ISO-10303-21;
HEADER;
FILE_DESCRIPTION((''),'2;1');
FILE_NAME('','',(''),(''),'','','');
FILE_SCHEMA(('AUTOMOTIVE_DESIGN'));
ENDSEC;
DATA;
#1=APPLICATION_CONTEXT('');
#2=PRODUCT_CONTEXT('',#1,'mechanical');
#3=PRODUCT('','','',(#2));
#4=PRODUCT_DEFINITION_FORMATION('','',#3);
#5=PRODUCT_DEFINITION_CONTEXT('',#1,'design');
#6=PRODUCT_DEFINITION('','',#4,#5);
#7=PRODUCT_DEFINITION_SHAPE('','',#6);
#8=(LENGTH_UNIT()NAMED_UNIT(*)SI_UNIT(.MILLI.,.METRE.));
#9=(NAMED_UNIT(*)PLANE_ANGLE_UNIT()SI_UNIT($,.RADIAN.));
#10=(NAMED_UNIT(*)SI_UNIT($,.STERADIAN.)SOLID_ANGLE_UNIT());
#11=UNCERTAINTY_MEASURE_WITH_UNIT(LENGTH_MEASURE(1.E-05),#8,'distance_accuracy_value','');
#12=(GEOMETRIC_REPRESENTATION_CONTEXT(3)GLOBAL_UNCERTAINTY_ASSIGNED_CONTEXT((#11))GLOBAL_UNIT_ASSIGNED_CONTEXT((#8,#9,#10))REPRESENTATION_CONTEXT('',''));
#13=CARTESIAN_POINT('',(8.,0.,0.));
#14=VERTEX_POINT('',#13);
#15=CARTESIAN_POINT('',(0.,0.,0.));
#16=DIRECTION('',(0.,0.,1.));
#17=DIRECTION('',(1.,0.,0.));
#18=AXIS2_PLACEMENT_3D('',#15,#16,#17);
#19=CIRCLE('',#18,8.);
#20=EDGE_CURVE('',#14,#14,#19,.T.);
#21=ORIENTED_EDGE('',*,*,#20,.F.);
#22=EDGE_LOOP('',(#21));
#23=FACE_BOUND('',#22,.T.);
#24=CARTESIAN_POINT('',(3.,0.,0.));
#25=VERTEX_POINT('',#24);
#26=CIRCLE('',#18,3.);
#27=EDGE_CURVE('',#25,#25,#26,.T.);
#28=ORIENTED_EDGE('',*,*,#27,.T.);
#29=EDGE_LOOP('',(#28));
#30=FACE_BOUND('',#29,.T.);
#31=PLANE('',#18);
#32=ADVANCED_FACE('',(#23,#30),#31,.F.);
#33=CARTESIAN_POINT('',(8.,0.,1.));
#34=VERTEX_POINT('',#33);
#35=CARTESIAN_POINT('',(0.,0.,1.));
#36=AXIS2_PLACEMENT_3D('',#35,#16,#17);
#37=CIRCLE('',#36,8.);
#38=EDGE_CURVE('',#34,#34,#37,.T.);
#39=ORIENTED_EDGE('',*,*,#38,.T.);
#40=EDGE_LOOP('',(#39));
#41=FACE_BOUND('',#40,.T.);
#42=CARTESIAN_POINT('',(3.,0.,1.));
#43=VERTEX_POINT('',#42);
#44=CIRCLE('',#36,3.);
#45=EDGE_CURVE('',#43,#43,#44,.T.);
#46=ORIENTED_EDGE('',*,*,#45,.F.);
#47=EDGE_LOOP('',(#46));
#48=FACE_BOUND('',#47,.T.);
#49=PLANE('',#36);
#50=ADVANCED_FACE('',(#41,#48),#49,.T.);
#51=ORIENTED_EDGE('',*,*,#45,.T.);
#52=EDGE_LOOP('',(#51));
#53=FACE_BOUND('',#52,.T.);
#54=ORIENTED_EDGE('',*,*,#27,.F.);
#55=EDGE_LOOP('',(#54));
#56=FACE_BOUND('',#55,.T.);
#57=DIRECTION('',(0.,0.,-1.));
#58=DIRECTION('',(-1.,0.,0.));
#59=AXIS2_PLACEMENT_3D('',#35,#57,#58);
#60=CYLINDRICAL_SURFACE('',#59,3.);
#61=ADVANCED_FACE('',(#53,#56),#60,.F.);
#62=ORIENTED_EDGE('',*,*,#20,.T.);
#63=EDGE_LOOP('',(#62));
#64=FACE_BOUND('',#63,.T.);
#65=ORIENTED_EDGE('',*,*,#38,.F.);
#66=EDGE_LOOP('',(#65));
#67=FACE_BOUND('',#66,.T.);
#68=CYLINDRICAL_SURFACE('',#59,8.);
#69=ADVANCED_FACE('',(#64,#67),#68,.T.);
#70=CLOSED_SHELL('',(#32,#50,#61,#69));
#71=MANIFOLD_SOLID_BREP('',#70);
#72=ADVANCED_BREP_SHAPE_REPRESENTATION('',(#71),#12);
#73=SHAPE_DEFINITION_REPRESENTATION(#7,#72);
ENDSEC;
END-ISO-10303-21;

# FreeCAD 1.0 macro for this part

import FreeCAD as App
import Part
import Sketcher

V = App.Vector
Q = App.Units.Quantity

doc = App.newDocument("Part")
body = doc.addObject("PartDesign::Body", "Body")

sketch1 = body.newObject("Sketcher::SketchObject", "Sketch")
sketch1.AttachmentSupport = (doc.getObject("XY_Plane"), [""])
sketch1.MapMode = "FlatFace"
sketch1.addGeometry([
    Part.Circle(V(0, 0, 0), V(0, 0, 1), 8),
    Part.Circle(V(0, 0, 0), V(0, 0, 1), 3),
], False)
sketch1.addConstraint([
    Sketcher.Constraint("Coincident", 0, 3, -1, 1),
    Sketcher.Constraint("Coincident", 1, 3, -1, 1),
    Sketcher.Constraint("Diameter", 0, Q("16 mm")),
    Sketcher.Constraint("Diameter", 1, Q("6 mm")),
])
pad1 = body.newObject("PartDesign::Pad", "Pad")
pad1.Profile = sketch1
pad1.Length = 1

doc.recompute()
